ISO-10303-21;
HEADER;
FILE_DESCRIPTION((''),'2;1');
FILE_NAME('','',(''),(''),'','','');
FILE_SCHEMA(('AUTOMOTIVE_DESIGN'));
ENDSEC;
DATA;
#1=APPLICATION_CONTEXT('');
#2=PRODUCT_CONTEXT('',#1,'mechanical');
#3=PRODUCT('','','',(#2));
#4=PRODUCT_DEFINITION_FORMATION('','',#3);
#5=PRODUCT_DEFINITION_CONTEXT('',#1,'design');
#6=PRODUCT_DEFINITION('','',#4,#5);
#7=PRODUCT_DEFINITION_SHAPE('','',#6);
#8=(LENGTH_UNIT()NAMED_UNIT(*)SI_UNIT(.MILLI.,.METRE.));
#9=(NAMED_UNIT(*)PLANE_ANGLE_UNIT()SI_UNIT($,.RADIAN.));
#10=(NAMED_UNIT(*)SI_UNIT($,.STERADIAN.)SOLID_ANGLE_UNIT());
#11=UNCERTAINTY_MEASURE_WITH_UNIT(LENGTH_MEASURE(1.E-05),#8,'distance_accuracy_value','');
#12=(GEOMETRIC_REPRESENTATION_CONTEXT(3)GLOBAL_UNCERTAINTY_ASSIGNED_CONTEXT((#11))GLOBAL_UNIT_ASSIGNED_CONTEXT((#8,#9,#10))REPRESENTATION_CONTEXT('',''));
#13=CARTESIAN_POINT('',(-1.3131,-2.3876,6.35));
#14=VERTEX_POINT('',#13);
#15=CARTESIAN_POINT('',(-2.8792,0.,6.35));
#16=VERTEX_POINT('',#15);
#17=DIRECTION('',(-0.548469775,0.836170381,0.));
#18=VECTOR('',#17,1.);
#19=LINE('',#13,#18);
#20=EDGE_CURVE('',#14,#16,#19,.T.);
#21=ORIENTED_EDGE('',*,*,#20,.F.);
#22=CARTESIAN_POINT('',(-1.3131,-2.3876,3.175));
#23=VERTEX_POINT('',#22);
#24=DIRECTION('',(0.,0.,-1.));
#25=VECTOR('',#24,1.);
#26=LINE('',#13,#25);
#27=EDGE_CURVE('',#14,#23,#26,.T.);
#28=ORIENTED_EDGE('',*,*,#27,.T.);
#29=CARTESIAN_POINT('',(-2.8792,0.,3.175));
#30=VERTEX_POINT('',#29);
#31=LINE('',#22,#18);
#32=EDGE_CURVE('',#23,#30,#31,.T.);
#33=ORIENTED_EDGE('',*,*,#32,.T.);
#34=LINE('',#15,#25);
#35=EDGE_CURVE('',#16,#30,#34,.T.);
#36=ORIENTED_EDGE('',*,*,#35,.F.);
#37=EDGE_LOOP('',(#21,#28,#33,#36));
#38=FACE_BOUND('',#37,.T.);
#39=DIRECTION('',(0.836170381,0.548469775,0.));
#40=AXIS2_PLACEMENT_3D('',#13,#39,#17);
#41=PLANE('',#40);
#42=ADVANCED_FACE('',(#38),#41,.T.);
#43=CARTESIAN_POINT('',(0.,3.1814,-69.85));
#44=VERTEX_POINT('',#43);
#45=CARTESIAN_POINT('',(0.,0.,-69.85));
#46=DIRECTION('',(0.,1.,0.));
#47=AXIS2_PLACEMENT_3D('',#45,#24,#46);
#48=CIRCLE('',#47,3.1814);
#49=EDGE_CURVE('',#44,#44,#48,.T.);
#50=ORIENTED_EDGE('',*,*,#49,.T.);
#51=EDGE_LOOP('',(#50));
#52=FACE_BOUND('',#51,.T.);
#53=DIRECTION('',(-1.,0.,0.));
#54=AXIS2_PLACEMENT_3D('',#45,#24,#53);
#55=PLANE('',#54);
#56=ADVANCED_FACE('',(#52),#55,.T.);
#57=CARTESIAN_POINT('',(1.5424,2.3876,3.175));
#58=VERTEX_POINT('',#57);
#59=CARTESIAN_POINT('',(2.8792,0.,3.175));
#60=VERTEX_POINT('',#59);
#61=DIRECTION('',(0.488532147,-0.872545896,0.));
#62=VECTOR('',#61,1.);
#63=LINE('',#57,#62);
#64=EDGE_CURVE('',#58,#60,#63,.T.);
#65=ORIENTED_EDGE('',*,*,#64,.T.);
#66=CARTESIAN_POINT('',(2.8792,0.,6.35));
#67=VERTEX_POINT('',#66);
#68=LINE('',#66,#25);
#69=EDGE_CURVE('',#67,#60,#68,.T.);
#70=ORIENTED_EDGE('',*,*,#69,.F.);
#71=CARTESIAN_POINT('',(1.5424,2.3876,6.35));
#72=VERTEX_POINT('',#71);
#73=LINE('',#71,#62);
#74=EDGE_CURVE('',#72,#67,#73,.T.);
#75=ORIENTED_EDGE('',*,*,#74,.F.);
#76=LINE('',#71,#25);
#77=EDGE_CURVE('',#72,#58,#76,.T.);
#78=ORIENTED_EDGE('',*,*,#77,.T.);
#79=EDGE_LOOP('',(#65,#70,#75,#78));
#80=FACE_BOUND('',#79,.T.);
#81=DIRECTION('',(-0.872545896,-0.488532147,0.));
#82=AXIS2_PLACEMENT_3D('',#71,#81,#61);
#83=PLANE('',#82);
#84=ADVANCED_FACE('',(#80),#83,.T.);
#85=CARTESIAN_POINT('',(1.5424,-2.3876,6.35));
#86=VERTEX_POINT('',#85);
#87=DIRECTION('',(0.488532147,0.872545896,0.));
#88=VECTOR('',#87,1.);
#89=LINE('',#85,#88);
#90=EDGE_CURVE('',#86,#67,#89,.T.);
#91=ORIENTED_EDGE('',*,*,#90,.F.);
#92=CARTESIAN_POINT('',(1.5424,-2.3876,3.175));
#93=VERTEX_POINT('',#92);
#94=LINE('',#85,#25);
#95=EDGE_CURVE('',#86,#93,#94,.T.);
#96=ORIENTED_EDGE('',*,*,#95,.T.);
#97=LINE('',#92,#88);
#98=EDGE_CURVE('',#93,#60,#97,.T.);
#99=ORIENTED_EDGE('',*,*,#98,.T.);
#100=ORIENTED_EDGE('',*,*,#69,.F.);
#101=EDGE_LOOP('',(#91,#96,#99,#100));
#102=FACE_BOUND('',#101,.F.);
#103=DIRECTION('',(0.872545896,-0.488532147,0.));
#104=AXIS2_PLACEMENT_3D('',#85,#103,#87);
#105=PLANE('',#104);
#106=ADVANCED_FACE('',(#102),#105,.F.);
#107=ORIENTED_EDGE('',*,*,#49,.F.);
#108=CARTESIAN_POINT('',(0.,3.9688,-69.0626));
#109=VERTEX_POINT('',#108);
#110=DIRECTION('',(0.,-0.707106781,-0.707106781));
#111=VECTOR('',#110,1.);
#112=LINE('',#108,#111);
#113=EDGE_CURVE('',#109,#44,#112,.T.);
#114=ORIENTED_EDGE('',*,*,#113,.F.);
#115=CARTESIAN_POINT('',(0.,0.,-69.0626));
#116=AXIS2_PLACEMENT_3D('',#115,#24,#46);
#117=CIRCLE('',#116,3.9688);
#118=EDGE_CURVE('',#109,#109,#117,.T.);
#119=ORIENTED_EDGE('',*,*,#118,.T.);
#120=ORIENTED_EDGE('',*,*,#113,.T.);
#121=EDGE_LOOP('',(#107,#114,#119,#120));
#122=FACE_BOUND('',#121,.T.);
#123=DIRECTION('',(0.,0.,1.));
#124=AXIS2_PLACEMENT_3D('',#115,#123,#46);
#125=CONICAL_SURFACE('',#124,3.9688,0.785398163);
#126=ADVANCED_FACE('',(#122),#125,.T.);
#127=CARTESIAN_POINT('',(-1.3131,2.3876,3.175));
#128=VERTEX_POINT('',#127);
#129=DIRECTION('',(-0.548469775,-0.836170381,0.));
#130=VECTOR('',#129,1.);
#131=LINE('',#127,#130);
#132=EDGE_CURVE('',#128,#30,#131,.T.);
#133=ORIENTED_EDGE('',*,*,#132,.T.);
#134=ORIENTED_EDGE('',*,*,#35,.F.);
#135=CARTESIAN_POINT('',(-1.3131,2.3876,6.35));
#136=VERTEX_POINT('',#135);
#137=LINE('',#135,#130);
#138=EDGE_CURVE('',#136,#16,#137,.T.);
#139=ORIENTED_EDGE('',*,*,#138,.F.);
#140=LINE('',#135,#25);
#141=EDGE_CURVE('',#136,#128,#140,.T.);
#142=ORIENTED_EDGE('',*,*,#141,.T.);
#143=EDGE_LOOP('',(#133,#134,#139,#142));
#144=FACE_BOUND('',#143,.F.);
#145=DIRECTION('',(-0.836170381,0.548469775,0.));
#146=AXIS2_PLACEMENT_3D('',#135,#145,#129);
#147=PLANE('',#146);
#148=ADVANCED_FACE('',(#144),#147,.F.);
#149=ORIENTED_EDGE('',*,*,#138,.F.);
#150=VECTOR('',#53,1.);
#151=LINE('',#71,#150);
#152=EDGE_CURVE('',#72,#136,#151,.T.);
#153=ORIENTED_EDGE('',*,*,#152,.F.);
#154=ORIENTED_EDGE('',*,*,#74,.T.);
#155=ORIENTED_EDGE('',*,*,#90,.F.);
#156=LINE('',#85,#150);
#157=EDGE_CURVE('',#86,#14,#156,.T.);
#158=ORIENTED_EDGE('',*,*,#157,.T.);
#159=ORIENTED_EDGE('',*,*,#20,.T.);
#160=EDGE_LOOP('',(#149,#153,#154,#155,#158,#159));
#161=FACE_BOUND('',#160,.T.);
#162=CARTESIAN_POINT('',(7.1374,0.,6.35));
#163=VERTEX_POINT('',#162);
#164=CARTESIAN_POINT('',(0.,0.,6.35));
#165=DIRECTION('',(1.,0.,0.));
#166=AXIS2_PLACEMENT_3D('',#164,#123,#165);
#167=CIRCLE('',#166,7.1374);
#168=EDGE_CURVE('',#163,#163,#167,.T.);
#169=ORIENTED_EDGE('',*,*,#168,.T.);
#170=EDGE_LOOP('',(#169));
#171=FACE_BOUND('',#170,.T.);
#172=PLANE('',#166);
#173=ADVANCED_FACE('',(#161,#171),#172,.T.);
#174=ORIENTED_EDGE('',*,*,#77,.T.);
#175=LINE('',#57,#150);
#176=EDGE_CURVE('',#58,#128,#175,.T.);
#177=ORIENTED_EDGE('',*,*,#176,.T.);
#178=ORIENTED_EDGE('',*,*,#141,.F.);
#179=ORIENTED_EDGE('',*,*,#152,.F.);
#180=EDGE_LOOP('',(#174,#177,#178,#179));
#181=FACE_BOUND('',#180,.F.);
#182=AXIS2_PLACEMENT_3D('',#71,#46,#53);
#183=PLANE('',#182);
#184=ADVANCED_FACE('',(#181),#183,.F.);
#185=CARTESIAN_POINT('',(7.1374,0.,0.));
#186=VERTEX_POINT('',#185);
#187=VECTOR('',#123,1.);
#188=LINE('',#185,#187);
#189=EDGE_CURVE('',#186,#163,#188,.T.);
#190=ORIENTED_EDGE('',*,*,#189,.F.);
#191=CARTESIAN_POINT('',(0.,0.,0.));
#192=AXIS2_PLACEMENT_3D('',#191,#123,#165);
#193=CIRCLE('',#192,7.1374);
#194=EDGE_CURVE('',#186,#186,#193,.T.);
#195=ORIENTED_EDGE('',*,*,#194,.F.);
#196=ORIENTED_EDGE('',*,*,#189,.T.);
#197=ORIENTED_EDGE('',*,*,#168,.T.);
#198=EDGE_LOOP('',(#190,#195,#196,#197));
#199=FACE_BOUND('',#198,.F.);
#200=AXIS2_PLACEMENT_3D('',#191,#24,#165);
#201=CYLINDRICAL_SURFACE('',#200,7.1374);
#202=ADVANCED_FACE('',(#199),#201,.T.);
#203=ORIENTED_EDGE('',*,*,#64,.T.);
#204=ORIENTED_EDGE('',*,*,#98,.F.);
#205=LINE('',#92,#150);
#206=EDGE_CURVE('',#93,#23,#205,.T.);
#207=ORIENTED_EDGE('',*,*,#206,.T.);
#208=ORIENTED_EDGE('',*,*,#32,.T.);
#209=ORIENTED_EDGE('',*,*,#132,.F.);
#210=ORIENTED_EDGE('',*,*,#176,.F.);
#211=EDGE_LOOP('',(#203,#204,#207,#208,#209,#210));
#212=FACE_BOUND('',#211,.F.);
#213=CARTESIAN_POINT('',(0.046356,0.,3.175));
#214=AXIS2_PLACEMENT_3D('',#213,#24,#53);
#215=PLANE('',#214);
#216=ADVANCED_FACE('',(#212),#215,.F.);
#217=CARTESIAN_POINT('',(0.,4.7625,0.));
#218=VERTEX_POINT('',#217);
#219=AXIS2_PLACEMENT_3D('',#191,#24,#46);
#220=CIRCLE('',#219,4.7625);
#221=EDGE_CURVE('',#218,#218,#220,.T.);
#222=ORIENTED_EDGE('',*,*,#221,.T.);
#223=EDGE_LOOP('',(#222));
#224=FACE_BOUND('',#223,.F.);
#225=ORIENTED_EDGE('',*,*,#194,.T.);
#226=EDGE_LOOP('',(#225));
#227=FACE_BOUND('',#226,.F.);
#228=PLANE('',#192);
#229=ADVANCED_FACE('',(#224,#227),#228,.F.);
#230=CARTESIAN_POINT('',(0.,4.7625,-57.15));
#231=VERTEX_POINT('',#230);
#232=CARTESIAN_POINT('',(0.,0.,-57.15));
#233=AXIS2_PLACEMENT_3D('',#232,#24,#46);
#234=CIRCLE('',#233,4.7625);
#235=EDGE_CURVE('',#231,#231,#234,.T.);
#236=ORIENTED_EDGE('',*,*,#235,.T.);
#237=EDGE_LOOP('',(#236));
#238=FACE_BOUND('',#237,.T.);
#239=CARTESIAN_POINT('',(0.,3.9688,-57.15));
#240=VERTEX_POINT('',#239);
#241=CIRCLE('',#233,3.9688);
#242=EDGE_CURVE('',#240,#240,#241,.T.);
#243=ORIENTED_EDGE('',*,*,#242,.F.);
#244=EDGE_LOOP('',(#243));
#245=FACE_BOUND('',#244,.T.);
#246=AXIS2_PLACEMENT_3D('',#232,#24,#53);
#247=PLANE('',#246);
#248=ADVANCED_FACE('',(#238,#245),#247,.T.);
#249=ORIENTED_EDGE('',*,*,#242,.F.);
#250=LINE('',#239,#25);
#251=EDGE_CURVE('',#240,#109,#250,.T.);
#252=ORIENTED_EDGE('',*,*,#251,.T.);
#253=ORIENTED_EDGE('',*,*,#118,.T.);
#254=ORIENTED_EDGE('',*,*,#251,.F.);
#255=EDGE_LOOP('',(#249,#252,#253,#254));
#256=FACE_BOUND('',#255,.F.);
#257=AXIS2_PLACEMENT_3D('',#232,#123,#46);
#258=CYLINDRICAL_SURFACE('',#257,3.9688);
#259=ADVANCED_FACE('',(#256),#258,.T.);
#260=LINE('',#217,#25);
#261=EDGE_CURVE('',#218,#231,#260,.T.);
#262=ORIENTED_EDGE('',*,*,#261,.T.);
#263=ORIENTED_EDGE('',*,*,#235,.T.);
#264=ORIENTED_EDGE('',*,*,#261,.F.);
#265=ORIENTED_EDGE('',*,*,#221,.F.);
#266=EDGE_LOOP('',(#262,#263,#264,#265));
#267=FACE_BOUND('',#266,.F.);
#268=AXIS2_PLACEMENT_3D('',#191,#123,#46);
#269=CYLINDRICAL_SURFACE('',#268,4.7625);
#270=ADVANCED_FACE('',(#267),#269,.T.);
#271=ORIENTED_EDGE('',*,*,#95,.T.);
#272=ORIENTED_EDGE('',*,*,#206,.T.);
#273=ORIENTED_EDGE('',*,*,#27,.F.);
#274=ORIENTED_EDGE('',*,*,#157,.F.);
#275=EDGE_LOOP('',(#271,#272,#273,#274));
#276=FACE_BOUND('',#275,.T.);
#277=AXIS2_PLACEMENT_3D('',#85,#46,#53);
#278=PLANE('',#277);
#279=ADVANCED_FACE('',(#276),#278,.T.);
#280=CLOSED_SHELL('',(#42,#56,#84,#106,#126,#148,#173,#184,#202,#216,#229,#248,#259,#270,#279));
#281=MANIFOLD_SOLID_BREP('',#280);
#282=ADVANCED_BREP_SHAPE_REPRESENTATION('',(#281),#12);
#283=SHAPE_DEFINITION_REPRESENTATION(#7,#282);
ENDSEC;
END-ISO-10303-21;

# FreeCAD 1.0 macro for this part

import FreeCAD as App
import Part
import Sketcher
Q = App.Units.Quantity


def edges_at(feature, points):
    """Names of the edges that pass closest to the given points."""
    edges = feature.Shape.Edges
    near = lambda p: min(range(len(edges)), key=lambda i: edges[i].distToShape(Part.Vertex(*p))[0])
    return sorted({f"Edge{near(p) + 1}" for p in points})

doc = App.newDocument("Part")
params = doc.addObject("Spreadsheet::Sheet", "Params")
for row, (alias, value) in enumerate([
    ("sketch1_diameter", "0.562 in"),
    ("pad1_length", "0.25 in"),
    ("sketch2_diameter", "0.375 in"),
    ("pad2_length", "2.25 in"),
    ("sketch3_diameter", "0.3125 in"),
    ("pad3_length", "0.5 in"),
    ("pocket1_length", "0.125 in"),
    ("chamfer_size", "0.031 in"),
], start=1):
    params.set(f"A{row}", alias)
    params.set(f"B{row}", "=" + value)
    params.setAlias(f"B{row}", alias)

body = doc.addObject("PartDesign::Body", "Body")

sketch1 = body.newObject("Sketcher::SketchObject", "Sketch")
sketch1.AttachmentSupport = (doc.getObject("XY_Plane"), [""])
sketch1.MapMode = "FlatFace"
sketch1.addGeometry(Part.Circle(App.Vector(0, 0, 0), App.Vector(0, 0, 1), 7), False)
sketch1.addConstraint([
    Sketcher.Constraint("Coincident", 0, 3, -1, 1),
    Sketcher.Constraint("Diameter", 0, Q("0.562 in")),
])
sketch1.setExpression("Constraints[1]", "Params.sketch1_diameter")
pad1 = body.newObject("PartDesign::Pad", "Pad")
pad1.Profile = sketch1
pad1.setExpression("Length", "Params.pad1_length")

sketch2 = body.newObject("Sketcher::SketchObject", "Sketch001")
sketch2.AttachmentSupport = (doc.getObject("XY_Plane"), [""])
sketch2.MapMode = "FlatFace"
sketch2.addGeometry(Part.Circle(App.Vector(0, 0, 0), App.Vector(0, 0, 1), 4.8), False)
sketch2.addConstraint([
    Sketcher.Constraint("Coincident", 0, 3, -1, 1),
    Sketcher.Constraint("Diameter", 0, Q("0.375 in")),
])
sketch2.setExpression("Constraints[1]", "Params.sketch2_diameter")
pad2 = body.newObject("PartDesign::Pad", "Pad001")
pad2.Profile = sketch2
pad2.setExpression("Length", "Params.pad2_length")
pad2.Reversed = True

sketch3 = body.newObject("Sketcher::SketchObject", "Sketch002")
sketch3.AttachmentSupport = (doc.getObject("XY_Plane"), [""])
sketch3.MapMode = "FlatFace"
sketch3.AttachmentOffset = App.Placement(App.Vector(0, 0, -2.25 * 25.4), App.Rotation())
sketch3.addGeometry(Part.Circle(App.Vector(0, 0, 0), App.Vector(0, 0, 1), 4), False)
sketch3.addConstraint([
    Sketcher.Constraint("Coincident", 0, 3, -1, 1),
    Sketcher.Constraint("Diameter", 0, Q("0.3125 in")),
])
sketch3.setExpression("Constraints[1]", "Params.sketch3_diameter")
pad3 = body.newObject("PartDesign::Pad", "Pad002")
pad3.Profile = sketch3
pad3.setExpression("Length", "Params.pad3_length")
pad3.Reversed = True

sketch4 = body.newObject("Sketcher::SketchObject", "Sketch003")
sketch4.AttachmentSupport = (doc.getObject("XY_Plane"), [""])
sketch4.MapMode = "FlatFace"
sketch4.AttachmentOffset = App.Placement(App.Vector(0, 0, 0.25 * 25.4), App.Rotation())
sketch4.addGeometry([
    Part.LineSegment(App.Vector(-2.9, 0, 0), App.Vector(-1.3, -2.4, 0)),
    Part.LineSegment(App.Vector(-1.3, -2.4, 0), App.Vector(1.5, -2.4, 0)),
    Part.LineSegment(App.Vector(1.5, -2.4, 0), App.Vector(2.9, 0, 0)),
    Part.LineSegment(App.Vector(2.9, 0, 0), App.Vector(1.5, 2.4, 0)),
    Part.LineSegment(App.Vector(1.5, 2.4, 0), App.Vector(-1.3, 2.4, 0)),
    Part.LineSegment(App.Vector(-1.3, 2.4, 0), App.Vector(-2.9, 0, 0)),
], False)
sketch4.addConstraint([
    Sketcher.Constraint("Coincident", 0, 2, 1, 1),
    Sketcher.Constraint("Coincident", 1, 2, 2, 1),
    Sketcher.Constraint("Coincident", 2, 2, 3, 1),
    Sketcher.Constraint("Coincident", 3, 2, 4, 1),
    Sketcher.Constraint("Coincident", 4, 2, 5, 1),
    Sketcher.Constraint("Coincident", 5, 2, 0, 1),
    Sketcher.Constraint("Horizontal", 1),
    Sketcher.Constraint("Horizontal", 4),
    Sketcher.Constraint("Symmetric", 2, 2, 5, 2, -1, 1),
    Sketcher.Constraint("Symmetric", 1, 2, 3, 2, -1),
    Sketcher.Constraint("PointOnObject", 2, 2, -1),
    Sketcher.Constraint("Vertical", 0, 2, 4, 2),
    Sketcher.Constraint("DistanceY", 0, 2, -1, 1, Q("0.094 in")),
    Sketcher.Constraint("DistanceX", 1, 1, 1, 2, 2.8555),
    Sketcher.Constraint("DistanceX", 0, 2, -1, 1, Q("0.0517 in")),
    Sketcher.Constraint("DistanceX", 5, 2, 2, 2, Q("0.2267 in")),
])
pocket1 = body.newObject("PartDesign::Pocket", "Pocket")
pocket1.Profile = sketch4
pocket1.setExpression("Length", "Params.pocket1_length")
doc.recompute()

chamfer = body.newObject("PartDesign::Chamfer", "Chamfer")
chamfer.Base = (pocket1, edges_at(pocket1, [(0, -3.969, -69.85)]))
chamfer.setExpression("Size", "Params.chamfer_size")

doc.recompute()
